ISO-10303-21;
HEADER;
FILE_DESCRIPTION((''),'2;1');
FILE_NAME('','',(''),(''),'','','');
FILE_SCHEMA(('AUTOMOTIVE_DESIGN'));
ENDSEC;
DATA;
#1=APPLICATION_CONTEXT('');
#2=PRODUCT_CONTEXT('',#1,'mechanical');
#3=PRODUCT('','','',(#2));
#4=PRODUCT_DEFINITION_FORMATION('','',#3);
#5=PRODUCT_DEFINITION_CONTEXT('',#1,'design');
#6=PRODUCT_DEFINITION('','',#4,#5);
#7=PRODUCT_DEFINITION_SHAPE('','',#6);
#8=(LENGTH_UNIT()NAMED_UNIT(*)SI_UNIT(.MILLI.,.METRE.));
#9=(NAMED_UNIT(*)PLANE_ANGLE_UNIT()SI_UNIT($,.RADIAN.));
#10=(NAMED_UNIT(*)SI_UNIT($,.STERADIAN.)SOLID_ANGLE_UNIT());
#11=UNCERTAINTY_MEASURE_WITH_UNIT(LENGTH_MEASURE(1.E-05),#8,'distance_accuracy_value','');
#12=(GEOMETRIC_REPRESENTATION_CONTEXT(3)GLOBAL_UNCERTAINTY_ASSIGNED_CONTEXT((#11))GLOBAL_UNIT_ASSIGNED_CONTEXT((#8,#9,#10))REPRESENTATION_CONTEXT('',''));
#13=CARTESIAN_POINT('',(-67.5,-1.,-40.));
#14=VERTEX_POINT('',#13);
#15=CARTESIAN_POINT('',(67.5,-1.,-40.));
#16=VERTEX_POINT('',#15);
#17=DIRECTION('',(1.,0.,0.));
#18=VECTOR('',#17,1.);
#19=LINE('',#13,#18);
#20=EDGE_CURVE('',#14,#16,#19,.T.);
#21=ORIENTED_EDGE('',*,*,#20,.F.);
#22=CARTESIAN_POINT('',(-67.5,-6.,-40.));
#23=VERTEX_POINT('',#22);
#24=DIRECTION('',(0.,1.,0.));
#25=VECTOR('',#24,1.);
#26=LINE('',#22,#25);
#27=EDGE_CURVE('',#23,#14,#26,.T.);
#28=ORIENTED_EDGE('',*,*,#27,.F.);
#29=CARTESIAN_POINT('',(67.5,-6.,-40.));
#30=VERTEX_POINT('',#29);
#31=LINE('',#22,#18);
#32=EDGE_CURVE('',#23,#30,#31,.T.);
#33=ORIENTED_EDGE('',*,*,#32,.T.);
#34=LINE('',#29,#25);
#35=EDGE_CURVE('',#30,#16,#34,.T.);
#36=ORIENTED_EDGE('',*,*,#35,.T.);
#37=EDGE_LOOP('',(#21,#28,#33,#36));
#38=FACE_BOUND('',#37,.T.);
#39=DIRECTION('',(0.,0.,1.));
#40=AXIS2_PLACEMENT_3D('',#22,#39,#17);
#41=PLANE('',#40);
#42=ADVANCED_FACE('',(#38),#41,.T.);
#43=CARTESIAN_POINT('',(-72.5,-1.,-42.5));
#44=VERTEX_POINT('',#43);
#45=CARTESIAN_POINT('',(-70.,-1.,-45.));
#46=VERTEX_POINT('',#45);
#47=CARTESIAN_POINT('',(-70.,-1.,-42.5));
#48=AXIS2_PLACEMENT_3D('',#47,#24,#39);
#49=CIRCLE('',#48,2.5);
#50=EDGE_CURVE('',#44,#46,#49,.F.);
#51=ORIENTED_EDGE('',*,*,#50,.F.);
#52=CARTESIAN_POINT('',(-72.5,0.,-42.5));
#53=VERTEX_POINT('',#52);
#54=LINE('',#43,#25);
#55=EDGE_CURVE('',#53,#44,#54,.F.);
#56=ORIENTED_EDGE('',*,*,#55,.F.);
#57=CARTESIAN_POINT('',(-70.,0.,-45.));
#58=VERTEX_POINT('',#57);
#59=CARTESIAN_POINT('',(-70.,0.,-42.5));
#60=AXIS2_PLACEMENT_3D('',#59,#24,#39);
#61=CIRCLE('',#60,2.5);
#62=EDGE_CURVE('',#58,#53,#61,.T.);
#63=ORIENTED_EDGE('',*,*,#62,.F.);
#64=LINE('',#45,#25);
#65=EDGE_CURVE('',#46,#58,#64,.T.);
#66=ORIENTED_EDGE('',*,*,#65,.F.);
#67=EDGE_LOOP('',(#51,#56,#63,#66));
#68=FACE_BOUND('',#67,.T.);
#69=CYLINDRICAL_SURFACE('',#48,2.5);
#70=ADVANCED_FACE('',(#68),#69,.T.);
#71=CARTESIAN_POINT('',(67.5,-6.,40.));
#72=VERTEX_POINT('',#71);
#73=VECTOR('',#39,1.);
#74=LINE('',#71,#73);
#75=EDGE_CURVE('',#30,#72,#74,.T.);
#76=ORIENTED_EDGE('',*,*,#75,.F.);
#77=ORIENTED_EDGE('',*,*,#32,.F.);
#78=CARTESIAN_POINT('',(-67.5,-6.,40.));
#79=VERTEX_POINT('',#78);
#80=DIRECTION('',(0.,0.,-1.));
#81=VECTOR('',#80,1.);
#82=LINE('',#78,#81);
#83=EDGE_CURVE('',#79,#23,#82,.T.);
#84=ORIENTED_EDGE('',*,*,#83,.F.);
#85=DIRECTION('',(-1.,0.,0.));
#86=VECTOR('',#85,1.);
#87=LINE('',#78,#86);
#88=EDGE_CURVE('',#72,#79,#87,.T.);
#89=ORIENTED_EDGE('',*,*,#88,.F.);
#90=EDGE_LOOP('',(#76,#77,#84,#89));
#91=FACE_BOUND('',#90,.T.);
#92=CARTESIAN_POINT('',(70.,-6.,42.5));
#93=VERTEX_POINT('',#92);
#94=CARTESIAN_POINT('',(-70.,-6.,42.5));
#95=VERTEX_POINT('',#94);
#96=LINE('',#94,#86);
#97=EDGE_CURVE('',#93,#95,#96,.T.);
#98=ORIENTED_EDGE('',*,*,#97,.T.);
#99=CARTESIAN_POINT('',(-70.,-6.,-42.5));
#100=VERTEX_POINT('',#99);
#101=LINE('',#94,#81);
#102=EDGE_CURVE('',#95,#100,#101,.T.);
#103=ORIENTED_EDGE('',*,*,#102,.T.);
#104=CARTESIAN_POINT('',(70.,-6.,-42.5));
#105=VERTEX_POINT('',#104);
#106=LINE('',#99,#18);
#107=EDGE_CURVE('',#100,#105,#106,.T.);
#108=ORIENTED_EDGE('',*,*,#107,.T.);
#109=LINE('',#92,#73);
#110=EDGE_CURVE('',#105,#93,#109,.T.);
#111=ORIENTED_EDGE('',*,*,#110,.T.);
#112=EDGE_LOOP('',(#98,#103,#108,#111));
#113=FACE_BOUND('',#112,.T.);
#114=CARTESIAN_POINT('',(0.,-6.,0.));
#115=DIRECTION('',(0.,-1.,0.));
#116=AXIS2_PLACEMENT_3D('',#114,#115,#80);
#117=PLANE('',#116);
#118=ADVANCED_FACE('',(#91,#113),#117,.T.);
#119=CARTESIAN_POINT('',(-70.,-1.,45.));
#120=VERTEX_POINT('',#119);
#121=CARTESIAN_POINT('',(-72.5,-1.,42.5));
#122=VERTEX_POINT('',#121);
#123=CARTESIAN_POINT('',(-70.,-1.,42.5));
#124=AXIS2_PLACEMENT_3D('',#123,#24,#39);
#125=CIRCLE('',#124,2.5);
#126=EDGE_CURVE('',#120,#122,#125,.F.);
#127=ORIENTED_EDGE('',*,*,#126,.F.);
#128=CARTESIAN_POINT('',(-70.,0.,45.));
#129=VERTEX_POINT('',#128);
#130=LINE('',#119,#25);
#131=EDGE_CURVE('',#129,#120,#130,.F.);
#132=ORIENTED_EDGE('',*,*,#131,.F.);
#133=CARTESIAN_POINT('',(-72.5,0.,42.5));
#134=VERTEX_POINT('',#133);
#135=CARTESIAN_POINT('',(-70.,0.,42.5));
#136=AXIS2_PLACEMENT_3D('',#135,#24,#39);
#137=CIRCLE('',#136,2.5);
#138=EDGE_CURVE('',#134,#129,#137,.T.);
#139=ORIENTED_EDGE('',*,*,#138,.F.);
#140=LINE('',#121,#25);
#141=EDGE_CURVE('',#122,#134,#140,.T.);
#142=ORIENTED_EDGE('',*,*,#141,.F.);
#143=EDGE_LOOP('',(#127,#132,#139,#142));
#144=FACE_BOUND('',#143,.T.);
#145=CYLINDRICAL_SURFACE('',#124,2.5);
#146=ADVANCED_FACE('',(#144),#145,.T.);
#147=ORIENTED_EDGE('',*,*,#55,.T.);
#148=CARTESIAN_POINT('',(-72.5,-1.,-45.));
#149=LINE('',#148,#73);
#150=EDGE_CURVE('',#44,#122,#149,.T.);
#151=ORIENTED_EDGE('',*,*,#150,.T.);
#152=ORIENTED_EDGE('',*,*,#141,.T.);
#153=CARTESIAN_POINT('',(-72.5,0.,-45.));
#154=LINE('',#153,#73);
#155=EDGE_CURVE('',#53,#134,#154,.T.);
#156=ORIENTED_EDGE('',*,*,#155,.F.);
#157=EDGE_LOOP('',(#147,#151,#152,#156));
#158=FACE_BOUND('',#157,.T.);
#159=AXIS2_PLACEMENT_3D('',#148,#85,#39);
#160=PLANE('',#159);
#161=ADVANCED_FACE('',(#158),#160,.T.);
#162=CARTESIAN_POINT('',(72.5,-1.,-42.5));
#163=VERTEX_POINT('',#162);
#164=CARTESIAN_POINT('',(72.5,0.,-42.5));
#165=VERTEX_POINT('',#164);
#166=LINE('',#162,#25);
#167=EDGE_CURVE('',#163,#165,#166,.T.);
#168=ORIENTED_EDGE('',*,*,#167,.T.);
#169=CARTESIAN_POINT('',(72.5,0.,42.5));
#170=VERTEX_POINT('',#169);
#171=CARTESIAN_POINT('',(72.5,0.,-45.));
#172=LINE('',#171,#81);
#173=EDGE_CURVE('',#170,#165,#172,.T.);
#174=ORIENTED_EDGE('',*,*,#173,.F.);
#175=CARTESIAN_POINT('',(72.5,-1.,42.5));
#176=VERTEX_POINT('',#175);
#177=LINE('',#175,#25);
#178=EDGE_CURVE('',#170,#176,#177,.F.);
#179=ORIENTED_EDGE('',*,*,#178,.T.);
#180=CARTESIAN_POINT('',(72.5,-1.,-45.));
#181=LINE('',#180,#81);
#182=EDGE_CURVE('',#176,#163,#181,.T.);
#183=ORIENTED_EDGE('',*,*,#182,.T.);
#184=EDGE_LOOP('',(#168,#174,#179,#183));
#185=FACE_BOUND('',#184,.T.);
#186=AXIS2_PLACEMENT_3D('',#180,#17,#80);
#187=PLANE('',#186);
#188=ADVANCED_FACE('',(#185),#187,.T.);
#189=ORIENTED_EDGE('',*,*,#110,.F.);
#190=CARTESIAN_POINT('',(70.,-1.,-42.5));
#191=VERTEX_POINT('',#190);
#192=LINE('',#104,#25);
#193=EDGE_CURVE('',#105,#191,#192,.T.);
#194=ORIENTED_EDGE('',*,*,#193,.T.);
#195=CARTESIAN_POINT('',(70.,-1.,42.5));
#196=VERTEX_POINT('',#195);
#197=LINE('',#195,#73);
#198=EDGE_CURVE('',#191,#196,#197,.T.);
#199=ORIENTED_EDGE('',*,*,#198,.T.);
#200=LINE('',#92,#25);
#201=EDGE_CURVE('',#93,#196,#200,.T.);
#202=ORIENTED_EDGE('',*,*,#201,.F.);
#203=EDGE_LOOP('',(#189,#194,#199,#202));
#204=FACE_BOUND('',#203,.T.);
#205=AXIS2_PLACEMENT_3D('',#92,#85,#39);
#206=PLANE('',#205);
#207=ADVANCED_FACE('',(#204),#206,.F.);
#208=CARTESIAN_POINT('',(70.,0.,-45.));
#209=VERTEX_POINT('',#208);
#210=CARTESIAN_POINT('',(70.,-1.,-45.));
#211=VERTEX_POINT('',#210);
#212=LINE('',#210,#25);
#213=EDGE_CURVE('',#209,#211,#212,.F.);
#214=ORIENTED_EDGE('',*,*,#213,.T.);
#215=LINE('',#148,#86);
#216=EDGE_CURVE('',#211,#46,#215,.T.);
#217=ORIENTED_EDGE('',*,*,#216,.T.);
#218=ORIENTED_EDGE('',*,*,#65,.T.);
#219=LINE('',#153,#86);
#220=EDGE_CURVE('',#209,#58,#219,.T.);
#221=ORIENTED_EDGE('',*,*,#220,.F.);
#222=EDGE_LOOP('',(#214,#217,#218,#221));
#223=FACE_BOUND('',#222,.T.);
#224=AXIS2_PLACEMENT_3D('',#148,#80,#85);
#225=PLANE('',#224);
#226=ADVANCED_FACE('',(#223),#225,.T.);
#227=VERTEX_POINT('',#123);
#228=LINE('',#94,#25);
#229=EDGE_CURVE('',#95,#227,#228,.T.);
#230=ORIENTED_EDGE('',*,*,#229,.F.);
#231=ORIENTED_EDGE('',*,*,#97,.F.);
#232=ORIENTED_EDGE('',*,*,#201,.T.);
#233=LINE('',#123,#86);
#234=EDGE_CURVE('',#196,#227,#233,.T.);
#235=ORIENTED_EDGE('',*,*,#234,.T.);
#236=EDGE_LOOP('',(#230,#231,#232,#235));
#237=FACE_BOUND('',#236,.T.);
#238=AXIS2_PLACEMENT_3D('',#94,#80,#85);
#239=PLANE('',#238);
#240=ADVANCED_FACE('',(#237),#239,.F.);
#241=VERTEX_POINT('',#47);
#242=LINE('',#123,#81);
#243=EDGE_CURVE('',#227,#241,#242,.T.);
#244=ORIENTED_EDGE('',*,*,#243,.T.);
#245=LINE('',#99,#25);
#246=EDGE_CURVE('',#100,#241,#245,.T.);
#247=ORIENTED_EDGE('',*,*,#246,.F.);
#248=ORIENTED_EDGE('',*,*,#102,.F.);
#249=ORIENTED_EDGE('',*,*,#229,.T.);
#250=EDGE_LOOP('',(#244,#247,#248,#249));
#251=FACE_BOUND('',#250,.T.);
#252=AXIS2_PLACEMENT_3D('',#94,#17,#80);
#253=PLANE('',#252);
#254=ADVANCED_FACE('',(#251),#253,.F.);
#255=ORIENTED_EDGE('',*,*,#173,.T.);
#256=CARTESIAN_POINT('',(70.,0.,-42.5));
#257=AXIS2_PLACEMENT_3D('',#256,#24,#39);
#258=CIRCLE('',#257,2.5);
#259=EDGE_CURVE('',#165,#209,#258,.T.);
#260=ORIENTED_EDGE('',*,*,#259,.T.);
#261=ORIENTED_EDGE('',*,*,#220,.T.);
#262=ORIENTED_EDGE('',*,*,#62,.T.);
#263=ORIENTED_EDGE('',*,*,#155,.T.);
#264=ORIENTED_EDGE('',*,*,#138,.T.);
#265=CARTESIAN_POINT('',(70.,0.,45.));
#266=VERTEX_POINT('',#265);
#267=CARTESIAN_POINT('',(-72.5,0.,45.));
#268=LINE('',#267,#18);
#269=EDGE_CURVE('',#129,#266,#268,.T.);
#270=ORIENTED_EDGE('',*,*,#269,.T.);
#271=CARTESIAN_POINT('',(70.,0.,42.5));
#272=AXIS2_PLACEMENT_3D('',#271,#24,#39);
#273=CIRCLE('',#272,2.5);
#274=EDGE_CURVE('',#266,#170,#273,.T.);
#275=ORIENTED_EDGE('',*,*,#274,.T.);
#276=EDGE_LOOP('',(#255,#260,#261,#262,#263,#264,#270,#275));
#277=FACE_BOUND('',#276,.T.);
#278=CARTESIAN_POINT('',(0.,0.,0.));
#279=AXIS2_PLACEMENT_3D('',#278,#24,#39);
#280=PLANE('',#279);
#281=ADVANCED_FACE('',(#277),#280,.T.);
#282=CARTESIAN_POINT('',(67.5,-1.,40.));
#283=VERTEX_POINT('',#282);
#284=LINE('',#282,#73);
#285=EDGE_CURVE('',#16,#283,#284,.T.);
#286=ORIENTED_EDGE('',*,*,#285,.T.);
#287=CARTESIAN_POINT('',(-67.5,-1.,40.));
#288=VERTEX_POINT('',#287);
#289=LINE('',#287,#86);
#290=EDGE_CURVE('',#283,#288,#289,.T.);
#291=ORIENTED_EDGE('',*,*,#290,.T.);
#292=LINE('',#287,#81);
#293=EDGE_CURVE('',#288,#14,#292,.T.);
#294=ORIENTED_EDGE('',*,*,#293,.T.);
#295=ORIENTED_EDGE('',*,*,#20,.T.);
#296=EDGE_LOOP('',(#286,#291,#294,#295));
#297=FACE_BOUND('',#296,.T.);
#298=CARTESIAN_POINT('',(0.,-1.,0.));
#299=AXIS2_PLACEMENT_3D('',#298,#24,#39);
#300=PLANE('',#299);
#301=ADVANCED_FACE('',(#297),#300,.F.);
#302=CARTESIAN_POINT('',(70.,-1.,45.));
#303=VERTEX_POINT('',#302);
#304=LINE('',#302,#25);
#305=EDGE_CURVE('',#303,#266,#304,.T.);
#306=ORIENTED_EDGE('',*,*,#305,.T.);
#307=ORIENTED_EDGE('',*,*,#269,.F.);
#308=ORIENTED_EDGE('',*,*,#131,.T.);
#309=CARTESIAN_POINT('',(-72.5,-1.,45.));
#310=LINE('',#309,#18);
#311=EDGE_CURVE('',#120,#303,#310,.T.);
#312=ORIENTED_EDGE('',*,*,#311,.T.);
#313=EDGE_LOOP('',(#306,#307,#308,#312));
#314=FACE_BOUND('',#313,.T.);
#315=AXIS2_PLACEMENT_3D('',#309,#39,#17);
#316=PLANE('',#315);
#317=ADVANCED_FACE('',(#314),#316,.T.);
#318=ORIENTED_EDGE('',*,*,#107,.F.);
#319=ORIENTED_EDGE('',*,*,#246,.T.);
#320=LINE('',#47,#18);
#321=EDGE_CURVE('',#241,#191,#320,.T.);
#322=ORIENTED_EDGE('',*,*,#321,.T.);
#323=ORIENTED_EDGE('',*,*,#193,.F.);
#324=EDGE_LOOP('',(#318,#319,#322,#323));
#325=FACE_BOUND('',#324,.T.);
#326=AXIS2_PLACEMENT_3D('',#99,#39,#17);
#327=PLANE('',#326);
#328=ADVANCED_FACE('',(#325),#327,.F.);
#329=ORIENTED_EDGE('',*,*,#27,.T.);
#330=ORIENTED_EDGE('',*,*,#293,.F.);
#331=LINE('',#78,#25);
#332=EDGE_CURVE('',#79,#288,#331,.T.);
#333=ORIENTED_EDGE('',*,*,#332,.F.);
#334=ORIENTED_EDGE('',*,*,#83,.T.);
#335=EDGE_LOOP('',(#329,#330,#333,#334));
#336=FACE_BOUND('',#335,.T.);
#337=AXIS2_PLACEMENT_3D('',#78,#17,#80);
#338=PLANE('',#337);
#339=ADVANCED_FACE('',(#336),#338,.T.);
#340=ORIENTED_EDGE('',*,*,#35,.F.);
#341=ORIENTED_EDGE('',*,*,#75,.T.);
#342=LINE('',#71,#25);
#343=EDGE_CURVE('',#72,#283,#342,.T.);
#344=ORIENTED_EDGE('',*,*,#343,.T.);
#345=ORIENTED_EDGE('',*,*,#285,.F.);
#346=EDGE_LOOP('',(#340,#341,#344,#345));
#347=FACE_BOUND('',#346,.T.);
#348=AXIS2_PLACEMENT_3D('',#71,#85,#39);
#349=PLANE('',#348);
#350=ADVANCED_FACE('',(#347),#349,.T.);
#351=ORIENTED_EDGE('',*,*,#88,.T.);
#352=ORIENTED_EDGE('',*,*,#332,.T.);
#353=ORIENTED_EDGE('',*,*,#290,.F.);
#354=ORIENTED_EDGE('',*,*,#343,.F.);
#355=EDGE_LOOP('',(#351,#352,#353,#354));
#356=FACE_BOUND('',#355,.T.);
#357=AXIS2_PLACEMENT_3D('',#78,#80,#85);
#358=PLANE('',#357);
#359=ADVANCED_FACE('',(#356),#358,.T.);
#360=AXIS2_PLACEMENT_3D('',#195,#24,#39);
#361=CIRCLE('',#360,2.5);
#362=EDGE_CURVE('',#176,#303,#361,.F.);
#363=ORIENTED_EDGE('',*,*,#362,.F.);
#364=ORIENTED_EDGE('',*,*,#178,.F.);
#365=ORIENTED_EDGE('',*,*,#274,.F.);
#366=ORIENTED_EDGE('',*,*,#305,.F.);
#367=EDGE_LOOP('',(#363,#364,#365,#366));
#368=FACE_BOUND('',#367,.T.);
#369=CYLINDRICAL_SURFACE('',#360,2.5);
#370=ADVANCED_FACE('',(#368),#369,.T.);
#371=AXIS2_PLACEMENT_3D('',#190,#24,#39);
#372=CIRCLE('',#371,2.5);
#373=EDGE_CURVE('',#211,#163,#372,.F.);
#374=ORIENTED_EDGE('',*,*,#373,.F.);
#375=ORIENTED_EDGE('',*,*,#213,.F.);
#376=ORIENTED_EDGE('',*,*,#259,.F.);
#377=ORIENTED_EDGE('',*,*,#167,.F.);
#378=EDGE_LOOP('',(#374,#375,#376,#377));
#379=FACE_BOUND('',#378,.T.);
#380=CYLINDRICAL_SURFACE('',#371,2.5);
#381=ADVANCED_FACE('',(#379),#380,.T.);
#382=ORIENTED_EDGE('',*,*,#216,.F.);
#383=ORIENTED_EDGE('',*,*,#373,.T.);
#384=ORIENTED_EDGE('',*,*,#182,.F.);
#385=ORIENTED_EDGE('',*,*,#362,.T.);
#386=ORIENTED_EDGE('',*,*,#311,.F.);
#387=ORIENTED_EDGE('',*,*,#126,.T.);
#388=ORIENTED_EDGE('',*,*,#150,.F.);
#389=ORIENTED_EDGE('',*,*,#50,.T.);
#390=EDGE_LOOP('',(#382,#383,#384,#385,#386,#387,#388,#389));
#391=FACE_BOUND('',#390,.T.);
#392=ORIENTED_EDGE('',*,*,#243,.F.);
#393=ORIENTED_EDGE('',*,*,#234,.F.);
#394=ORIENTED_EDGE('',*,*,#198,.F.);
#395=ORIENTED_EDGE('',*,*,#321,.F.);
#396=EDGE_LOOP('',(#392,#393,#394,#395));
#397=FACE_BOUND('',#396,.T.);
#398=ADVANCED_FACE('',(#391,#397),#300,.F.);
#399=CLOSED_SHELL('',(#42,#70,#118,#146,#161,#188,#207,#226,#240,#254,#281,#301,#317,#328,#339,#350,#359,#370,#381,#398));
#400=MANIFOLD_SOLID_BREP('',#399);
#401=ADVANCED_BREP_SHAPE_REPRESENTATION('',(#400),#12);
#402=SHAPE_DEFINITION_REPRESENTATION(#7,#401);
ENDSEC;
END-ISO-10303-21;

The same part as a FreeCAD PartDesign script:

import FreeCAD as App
import Part
import Sketcher
from FreeCAD import Vector


def edges_at(feature, points):
    """Names of the edges that pass closest to the given points."""
    edges = feature.Shape.Edges
    near = lambda p: min(range(len(edges)), key=lambda i: edges[i].distToShape(Part.Vertex(*p))[0])
    return sorted({f"Edge{near(p) + 1}" for p in points})


def add_polygon(sketch, points):
    """Adds a closed chain of lines whose ends are joined by coincident constraints."""
    first, n = sketch.GeometryCount, len(points)
    for a, b in zip(points, points[1:] + points[:1]):
        sketch.addGeometry(Part.LineSegment(App.Vector(*a, 0), App.Vector(*b, 0)), False)
    for i in range(n):
        sketch.addConstraint(Sketcher.Constraint("Coincident", first + i, 2, first + (i + 1) % n, 1))

doc = App.newDocument("Part")
params = doc.addObject("Spreadsheet::Sheet", "Params")
for row, (alias, value) in enumerate([
    ("sketch1_width", "145 mm"),
    ("sketch1_height", "90 mm"),
    ("pad1_length", "1 mm"),
    ("sketch2_width", "140 mm"),
    ("sketch2_width2", "135 mm"),
    ("sketch2_height", "85 mm"),
    ("sketch2_height2", "80 mm"),
    ("pad2_length", "5 mm"),
    ("fillet_radius", "2.5 mm"),
], start=1):
    params.set(f"A{row}", alias)
    params.set(f"B{row}", "=" + value)
    params.setAlias(f"B{row}", alias)

body = doc.addObject("PartDesign::Body", "Body")

# Sketch on XZ plane
sketch1 = body.newObject("Sketcher::SketchObject", "Sketch")
sketch1.AttachmentSupport = (doc.getObject("XZ_Plane"), [""])
sketch1.MapMode = "FlatFace"
add_polygon(sketch1, [(-72, -45), (-72, 45), (72, 45), (72, -45)])  # lines 0-3
sketch1.addConstraint([
    Sketcher.Constraint("Vertical", 0),
    Sketcher.Constraint("Horizontal", 1),
    Sketcher.Constraint("Vertical", 2),
    Sketcher.Constraint("Horizontal", 3),
    Sketcher.Constraint("Symmetric", 0, 2, 2, 2, -1, 1),
    Sketcher.Constraint("DistanceX", 1, 1, 1, 2, 145.0),
    Sketcher.Constraint("DistanceY", 0, 1, 0, 2, 90.0),
])
sketch1.setExpression("Constraints[9]", "Params.sketch1_width")
sketch1.setExpression("Constraints[10]", "Params.sketch1_height")
pad1 = body.newObject("PartDesign::Pad", "Pad")
pad1.Profile = sketch1
pad1.setExpression("Length", "Params.pad1_length")

# Sketch on XZ plane
sketch2 = body.newObject("Sketcher::SketchObject", "Sketch001")
sketch2.AttachmentSupport = (doc.getObject("XZ_Plane"), [""])
sketch2.MapMode = "FlatFace"
sketch2.AttachmentOffset = App.Placement(Vector(0, 0, 1), App.Rotation())
add_polygon(sketch2, [(-70, 42), (-70, -42), (70, -42), (70, 42)])  # lines 0-3
add_polygon(sketch2, [(68, -40), (-68, -40), (-68, 40), (68, 40)])  # lines 4-7
sketch2.addConstraint([
    Sketcher.Constraint("Vertical", 0),
    Sketcher.Constraint("Horizontal", 1),
    Sketcher.Constraint("Vertical", 2),
    Sketcher.Constraint("Horizontal", 3),
    Sketcher.Constraint("Horizontal", 4),
    Sketcher.Constraint("Vertical", 5),
    Sketcher.Constraint("Horizontal", 6),
    Sketcher.Constraint("Vertical", 7),
    Sketcher.Constraint("Symmetric", 0, 2, 2, 2, -1, 1),
    Sketcher.Constraint("Symmetric", 4, 2, 6, 2, -1, 1),
    Sketcher.Constraint("DistanceX", 1, 1, 1, 2, 140.0),
    Sketcher.Constraint("DistanceX", 4, 2, 4, 1, 135.0),
    Sketcher.Constraint("DistanceY", 0, 2, 0, 1, 85.0),
    Sketcher.Constraint("DistanceY", 5, 1, 5, 2, 80.0),
])
sketch2.setExpression("Constraints[18]", "Params.sketch2_width")
sketch2.setExpression("Constraints[19]", "Params.sketch2_width2")
sketch2.setExpression("Constraints[20]", "Params.sketch2_height")
sketch2.setExpression("Constraints[21]", "Params.sketch2_height2")
pad2 = body.newObject("PartDesign::Pad", "Pad001")
pad2.Profile = sketch2
pad2.setExpression("Length", "Params.pad2_length")
doc.recompute()

fillet = body.newObject("PartDesign::Fillet", "Fillet")
fillet.Base = (pad2, edges_at(pad2, [
    (72.5, -0.5, 45),
    (-72.5, -0.5, 45),
    (-72.5, -0.5, -45),
    (72.5, -0.5, -45),
]))
fillet.setExpression("Radius", "Params.fillet_radius")

doc.recompute()
